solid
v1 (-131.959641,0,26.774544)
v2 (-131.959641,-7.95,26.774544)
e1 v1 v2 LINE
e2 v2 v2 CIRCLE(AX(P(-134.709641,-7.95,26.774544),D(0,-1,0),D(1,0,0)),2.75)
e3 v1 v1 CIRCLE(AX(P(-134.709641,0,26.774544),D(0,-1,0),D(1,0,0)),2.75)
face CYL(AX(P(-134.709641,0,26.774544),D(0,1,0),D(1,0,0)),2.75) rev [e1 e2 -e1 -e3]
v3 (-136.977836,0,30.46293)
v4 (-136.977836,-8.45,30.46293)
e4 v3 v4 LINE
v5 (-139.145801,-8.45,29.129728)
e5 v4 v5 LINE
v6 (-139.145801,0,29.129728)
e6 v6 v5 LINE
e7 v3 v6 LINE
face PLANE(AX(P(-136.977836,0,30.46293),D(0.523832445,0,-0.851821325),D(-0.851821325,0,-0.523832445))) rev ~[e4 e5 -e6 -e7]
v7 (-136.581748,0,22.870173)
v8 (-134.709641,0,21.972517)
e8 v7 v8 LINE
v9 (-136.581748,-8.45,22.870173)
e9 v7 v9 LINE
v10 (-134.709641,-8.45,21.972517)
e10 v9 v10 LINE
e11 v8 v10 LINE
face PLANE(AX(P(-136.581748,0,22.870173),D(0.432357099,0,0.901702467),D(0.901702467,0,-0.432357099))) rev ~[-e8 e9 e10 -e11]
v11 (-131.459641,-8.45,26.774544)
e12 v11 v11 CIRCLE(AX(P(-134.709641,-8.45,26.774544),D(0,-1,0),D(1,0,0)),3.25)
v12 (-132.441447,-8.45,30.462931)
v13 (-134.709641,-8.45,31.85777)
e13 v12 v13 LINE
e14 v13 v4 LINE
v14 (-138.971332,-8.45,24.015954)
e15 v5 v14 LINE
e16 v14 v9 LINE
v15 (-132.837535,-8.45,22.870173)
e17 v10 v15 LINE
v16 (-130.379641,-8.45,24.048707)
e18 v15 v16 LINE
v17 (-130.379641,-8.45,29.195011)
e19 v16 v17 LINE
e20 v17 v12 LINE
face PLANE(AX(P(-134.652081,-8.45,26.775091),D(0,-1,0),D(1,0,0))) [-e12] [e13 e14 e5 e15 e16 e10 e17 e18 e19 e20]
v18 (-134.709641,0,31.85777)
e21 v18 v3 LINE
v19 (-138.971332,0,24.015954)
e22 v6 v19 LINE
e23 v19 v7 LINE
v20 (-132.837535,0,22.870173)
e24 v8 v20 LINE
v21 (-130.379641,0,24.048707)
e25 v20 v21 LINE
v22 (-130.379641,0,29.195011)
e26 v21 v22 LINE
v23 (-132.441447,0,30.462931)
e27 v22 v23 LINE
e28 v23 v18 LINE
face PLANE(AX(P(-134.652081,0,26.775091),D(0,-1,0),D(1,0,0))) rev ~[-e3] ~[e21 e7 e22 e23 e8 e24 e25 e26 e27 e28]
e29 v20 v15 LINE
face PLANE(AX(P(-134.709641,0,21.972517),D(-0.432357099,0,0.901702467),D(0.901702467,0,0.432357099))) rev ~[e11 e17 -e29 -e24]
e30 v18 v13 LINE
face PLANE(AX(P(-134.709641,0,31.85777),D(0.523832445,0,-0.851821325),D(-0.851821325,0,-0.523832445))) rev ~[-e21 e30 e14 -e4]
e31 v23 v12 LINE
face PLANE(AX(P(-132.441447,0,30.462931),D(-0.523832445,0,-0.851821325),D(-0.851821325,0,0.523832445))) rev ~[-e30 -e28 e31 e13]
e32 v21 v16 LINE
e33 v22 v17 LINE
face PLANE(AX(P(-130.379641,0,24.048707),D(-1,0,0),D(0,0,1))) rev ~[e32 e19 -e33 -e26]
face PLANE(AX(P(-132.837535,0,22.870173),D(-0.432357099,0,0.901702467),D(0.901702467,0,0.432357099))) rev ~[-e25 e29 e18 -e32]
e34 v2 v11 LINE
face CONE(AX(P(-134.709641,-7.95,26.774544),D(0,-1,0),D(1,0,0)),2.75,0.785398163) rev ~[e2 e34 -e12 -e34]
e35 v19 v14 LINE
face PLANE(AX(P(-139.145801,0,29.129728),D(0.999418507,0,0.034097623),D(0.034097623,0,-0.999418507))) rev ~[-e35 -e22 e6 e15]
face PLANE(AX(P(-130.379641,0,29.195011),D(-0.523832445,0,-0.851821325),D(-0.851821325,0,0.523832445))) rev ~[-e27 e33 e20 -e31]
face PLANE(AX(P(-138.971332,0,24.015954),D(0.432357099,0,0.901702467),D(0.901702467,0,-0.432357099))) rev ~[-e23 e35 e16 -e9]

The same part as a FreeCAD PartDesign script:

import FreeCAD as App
import Part
import Sketcher

V = App.Vector


def edges_at(feature, points):
    """Names of the edges that pass closest to the given points."""
    edges = feature.Shape.Edges
    near = lambda p: min(range(len(edges)), key=lambda i: edges[i].distToShape(Part.Vertex(*p))[0])
    return sorted({f"Edge{near(p) + 1}" for p in points})


def add_polygon(sketch, points):
    """Adds a closed chain of lines whose ends are joined by coincident constraints."""
    first, n = sketch.GeometryCount, len(points)
    for a, b in zip(points, points[1:] + points[:1]):
        sketch.addGeometry(Part.LineSegment(App.Vector(*a, 0), App.Vector(*b, 0)), False)
    for i in range(n):
        sketch.addConstraint(Sketcher.Constraint("Coincident", first + i, 2, first + (i + 1) % n, 1))

doc = App.newDocument("Part")
body = doc.addObject("PartDesign::Body", "Body")

# Sketch on XZ plane
sketch1 = body.newObject("Sketcher::SketchObject", "Sketch")
sketch1.AttachmentSupport = (doc.getObject("XZ_Plane"), [""])
sketch1.MapMode = "FlatFace"
add_polygon(sketch1, [(-132.8, 22.9), (-130.4, 24), (-130.4, 29.2), (-132.4, 30.5), (-134.7, 31.9), (-137, 30.5), (-139.1, 29.1), (-139, 24), (-136.6, 22.9), (-134.7, 22)])  # lines 0-9
sketch1.addGeometry(Part.Circle(V(-134.7, 26.8, 0), V(0, 0, 1), 2.8), False)  # 10
sketch1.addConstraint(Sketcher.Constraint("Vertical", 1))
sketch1.addConstraint(Sketcher.Constraint("Parallel", 2, 3))
sketch1.addConstraint(Sketcher.Constraint("Parallel", 4, 5))
sketch1.addConstraint(Sketcher.Constraint("Parallel", 7, 8))
sketch1.addConstraint(Sketcher.Constraint("Parallel", 0, 9))
sketch1.addConstraint(Sketcher.Constraint("Horizontal", 2, 2, 4, 2))
sketch1.addConstraint(Sketcher.Constraint("Horizontal", 7, 2, 9, 2))
sketch1.addConstraint(Sketcher.Constraint("Vertical", 10, 3, 3, 2))
sketch1.addConstraint(Sketcher.Constraint("Vertical", 3, 2, 8, 2))
sketch1.addConstraint(Sketcher.Constraint("Equal", 3, 4))
sketch1.addConstraint(Sketcher.Constraint("Equal", 8, 9))
sketch1.addConstraint(Sketcher.Constraint("Diameter", 10, 5.5))
sketch1.addConstraint(Sketcher.Constraint("DistanceX", 10, 3, 0, 2, 4.33))
sketch1.addConstraint(Sketcher.Constraint("DistanceX", 5, 2, -1, 1, 139.145801))
sketch1.addConstraint(Sketcher.Constraint("Distance", 3, 2.662759))
sketch1.addConstraint(Sketcher.Constraint("Distance", 6, 5.11675))
sketch1.addConstraint(Sketcher.Constraint("Distance", 7, 2.650081))
sketch1.addConstraint(Sketcher.Constraint("Distance", 8, 2.076191))
sketch1.addConstraint(Sketcher.Constraint("DistanceY", 1, 1, 1, 2, 5.146304))
sketch1.addConstraint(Sketcher.Constraint("DistanceX", 10, 3, -1, 1, 134.709641))
sketch1.addConstraint(Sketcher.Constraint("DistanceY", -1, 1, 1, 2, 29.195011))
sketch1.addConstraint(Sketcher.Constraint("DistanceY", -1, 1, 2, 2, 30.462931))
sketch1.addConstraint(Sketcher.Constraint("DistanceY", 6, 2, 10, 3, 2.758591))
pad1 = body.newObject("PartDesign::Pad", "Pad")
pad1.Profile = sketch1
pad1.Length = 8.45
doc.recompute()

chamfer = body.newObject("PartDesign::Chamfer", "Chamfer")
chamfer.Base = (pad1, edges_at(pad1, [(-137.46, -8.45, 26.775)]))
chamfer.Size = 0.5

doc.recompute()
